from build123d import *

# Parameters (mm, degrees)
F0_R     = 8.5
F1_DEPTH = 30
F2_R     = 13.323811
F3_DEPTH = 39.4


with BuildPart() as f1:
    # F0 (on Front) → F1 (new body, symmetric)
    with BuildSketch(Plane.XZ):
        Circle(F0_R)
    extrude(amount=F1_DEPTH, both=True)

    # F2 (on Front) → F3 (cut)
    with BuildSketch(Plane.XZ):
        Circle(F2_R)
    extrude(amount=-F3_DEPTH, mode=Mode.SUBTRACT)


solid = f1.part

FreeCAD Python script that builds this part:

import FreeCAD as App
import Part
import Sketcher
Q = App.Units.Quantity

doc = App.newDocument("Part")
body = doc.addObject("PartDesign::Body", "Body")

# Sketch on XZ plane
sketch1 = body.newObject("Sketcher::SketchObject", "Sketch")
sketch1.AttachmentSupport = (doc.getObject("XZ_Plane"), [""])
sketch1.MapMode = "FlatFace"
sketch1.addGeometry(Part.Circle(App.Vector(0, 0, 0), App.Vector(0, 0, 1), 8), False)
sketch1.addConstraint([
    Sketcher.Constraint("Coincident", 0, 3, -1, 1),
    Sketcher.Constraint("Diameter", 0, Q("17 mm")),
])
pad1 = body.newObject("PartDesign::Pad", "Pad")
pad1.Profile = sketch1
pad1.Length = 60
pad1.Midplane = True

# Sketch on XZ plane
sketch2 = body.newObject("Sketcher::SketchObject", "Sketch001")
sketch2.AttachmentSupport = (doc.getObject("XZ_Plane"), [""])
sketch2.MapMode = "FlatFace"
sketch2.addGeometry(Part.Circle(App.Vector(0, 0, 0), App.Vector(0, 0, 1), 13), False)
sketch2.addConstraint([
    Sketcher.Constraint("Coincident", 0, 3, -1, 1),
    Sketcher.Constraint("Diameter", 0, Q("26.647622 mm")),
])
pocket1 = body.newObject("PartDesign::Pocket", "Pocket")
pocket1.Profile = sketch2
pocket1.Length = 39.4

doc.recompute()
